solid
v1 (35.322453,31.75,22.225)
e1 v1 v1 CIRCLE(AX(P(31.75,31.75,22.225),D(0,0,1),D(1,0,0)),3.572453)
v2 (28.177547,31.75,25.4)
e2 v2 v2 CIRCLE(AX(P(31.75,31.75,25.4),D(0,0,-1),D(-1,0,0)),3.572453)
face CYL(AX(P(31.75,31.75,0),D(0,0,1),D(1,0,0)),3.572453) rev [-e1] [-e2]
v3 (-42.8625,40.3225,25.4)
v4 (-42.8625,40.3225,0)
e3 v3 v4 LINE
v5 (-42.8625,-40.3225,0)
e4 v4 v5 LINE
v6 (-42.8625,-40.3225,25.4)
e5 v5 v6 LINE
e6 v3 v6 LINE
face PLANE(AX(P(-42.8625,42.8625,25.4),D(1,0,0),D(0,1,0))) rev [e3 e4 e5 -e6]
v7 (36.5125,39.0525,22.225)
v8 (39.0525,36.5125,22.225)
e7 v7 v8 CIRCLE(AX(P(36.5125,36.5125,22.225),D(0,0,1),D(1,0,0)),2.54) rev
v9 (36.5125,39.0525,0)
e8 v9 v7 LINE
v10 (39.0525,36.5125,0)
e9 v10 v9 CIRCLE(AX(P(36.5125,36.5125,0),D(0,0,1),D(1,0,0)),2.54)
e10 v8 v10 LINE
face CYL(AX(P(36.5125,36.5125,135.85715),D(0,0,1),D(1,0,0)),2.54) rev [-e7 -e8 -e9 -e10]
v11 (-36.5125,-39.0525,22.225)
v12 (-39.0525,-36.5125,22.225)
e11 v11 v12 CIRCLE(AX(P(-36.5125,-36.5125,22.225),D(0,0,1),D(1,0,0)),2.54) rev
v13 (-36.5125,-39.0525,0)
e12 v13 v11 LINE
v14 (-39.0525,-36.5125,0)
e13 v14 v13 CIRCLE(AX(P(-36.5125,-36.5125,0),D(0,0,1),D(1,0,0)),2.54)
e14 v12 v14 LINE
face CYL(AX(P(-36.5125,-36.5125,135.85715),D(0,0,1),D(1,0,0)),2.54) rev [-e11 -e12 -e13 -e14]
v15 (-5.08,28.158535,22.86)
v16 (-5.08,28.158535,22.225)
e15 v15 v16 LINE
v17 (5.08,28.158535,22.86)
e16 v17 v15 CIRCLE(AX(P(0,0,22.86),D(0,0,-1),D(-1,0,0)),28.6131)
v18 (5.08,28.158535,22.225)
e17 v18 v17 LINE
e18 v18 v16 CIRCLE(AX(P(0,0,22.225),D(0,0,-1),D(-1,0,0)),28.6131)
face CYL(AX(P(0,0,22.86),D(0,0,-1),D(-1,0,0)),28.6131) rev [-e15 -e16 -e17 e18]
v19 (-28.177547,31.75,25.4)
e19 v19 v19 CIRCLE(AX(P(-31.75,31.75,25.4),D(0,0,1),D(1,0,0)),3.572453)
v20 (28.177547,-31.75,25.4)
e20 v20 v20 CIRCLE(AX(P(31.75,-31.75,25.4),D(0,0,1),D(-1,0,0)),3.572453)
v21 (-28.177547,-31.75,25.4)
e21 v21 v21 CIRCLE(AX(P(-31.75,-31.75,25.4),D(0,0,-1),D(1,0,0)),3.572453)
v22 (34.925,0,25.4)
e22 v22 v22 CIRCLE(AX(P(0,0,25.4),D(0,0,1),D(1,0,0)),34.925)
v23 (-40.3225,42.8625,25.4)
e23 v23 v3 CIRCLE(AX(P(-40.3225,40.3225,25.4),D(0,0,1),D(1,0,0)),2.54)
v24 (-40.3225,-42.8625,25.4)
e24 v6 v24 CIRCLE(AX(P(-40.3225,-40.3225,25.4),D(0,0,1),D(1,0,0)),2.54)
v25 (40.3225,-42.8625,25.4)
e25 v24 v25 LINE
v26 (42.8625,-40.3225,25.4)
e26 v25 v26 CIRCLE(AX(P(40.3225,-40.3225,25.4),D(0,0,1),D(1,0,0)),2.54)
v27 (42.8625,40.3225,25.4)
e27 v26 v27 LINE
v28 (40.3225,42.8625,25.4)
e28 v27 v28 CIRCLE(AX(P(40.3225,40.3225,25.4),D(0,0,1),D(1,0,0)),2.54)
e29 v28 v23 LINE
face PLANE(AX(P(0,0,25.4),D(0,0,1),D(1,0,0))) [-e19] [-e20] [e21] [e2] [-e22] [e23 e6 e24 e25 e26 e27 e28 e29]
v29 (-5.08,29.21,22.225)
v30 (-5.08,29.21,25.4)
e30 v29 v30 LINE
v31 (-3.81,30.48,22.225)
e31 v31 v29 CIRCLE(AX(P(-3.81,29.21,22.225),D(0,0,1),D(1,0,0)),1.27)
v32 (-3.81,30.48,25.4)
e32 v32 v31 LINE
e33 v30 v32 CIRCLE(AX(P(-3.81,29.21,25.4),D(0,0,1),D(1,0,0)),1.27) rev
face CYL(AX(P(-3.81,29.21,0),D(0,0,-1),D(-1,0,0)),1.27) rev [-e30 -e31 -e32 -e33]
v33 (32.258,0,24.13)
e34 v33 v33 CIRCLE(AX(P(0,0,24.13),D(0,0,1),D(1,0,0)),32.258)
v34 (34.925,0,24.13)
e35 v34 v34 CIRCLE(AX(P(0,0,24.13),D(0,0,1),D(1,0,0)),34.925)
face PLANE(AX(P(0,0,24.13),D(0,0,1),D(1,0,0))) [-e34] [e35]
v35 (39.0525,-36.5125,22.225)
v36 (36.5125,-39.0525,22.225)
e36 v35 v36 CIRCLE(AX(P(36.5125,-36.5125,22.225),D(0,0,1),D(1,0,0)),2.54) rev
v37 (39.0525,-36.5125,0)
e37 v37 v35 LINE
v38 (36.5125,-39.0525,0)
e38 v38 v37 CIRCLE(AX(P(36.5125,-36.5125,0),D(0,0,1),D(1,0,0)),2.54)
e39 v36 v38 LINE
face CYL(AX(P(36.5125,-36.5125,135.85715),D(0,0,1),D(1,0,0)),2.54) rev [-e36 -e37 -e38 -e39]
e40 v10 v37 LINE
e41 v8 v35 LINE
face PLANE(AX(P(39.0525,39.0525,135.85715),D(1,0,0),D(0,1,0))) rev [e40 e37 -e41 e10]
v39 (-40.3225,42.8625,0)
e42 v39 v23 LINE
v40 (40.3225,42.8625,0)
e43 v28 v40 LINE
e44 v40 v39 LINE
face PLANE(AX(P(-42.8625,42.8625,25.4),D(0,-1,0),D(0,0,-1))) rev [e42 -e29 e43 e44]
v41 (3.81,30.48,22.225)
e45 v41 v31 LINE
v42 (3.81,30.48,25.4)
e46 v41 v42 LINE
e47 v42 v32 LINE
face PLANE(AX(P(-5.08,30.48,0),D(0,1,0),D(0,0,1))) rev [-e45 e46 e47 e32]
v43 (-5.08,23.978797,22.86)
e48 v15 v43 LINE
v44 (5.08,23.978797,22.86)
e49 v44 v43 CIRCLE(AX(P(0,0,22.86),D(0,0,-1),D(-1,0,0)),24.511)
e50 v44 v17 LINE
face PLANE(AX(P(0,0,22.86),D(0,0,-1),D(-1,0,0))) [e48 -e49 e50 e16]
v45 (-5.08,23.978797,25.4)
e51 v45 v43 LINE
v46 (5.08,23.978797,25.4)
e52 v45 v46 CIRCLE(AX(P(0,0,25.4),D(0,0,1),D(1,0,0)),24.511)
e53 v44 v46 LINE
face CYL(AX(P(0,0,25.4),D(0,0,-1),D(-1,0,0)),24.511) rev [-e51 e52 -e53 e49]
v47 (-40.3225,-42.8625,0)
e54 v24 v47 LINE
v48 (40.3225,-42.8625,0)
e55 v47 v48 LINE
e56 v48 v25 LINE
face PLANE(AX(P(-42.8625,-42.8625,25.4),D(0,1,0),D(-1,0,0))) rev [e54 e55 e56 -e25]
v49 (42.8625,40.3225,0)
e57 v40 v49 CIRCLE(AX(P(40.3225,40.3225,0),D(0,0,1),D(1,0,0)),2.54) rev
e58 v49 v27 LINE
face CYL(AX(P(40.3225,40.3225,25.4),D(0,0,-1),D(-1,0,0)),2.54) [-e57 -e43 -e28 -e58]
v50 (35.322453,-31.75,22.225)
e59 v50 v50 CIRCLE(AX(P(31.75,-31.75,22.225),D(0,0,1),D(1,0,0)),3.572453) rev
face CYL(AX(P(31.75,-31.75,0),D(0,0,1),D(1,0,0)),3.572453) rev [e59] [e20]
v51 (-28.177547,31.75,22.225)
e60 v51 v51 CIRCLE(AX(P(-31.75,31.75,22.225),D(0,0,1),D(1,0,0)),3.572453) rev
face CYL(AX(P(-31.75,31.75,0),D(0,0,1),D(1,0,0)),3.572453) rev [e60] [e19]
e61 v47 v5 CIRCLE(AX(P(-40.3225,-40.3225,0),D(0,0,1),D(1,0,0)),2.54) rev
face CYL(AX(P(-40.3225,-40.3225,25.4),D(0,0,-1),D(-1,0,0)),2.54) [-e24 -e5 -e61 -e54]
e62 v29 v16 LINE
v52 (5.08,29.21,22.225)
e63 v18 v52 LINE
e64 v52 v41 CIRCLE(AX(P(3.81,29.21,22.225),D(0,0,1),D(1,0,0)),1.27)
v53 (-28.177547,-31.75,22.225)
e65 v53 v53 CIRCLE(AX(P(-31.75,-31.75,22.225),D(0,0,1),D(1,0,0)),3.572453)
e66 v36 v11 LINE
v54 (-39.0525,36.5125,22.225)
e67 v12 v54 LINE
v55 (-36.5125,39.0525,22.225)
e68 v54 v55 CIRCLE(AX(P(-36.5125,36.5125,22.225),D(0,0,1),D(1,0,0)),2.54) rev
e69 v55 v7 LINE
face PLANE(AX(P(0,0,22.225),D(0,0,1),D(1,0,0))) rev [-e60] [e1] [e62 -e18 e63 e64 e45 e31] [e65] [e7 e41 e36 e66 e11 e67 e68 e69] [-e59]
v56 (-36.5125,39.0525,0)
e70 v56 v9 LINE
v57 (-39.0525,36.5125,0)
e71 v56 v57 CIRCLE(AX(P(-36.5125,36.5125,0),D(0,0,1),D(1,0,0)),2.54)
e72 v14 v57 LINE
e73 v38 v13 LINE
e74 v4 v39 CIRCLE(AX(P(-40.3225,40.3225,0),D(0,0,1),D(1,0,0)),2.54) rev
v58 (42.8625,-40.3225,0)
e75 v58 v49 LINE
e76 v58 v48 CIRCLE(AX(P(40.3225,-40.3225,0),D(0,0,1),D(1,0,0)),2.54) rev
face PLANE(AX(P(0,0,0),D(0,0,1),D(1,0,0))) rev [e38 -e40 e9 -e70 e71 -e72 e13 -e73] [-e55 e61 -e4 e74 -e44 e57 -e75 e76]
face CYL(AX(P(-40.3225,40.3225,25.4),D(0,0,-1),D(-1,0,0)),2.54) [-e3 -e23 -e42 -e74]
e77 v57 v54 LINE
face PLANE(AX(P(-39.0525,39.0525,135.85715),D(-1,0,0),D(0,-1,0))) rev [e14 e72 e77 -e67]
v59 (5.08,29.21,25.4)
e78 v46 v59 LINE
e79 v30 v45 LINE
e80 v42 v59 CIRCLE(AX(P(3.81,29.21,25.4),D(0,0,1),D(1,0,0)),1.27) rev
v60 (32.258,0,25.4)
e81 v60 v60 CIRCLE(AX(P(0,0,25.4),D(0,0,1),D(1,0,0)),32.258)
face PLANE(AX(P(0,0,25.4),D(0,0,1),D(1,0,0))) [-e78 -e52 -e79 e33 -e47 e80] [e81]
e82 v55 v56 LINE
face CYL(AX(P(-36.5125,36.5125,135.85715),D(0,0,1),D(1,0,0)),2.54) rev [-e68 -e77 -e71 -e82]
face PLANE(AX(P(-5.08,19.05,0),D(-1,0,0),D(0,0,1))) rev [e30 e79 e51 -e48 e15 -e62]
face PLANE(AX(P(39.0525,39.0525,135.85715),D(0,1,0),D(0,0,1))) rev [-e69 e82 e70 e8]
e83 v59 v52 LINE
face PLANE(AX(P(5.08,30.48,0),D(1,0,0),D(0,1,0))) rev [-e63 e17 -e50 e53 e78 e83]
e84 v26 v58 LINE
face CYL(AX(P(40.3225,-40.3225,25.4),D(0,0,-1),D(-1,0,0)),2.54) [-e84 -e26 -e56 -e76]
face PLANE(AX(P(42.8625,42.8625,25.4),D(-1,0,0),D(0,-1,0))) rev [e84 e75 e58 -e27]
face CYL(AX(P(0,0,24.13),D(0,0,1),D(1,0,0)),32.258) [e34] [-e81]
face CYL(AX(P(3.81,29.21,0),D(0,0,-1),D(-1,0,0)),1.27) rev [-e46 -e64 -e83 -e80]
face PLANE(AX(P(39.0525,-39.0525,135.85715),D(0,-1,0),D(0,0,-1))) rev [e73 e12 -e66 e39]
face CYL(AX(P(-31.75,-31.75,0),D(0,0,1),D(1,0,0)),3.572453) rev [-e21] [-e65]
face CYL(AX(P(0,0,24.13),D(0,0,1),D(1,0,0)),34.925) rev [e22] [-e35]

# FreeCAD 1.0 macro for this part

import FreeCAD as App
import Part
import Sketcher
Q = App.Units.Quantity


def edges_at(feature, points):
    """Names of the edges that pass closest to the given points."""
    edges = feature.Shape.Edges
    near = lambda p: min(range(len(edges)), key=lambda i: edges[i].distToShape(Part.Vertex(*p))[0])
    return sorted({f"Edge{near(p) + 1}" for p in points})

doc = App.newDocument("Part")
body = doc.addObject("PartDesign::Body", "Body")

sketch1 = body.newObject("Sketcher::SketchObject", "Sketch")
sketch1.AttachmentSupport = (doc.getObject("XY_Plane"), [""])
sketch1.MapMode = "FlatFace"
sketch1.addGeometry(Part.LineSegment(App.Vector(-42.8625, 42.8625, 0), App.Vector(-42.8625, -42.8625, 0)), False)
sketch1.addGeometry(Part.LineSegment(App.Vector(-42.8625, -42.8625, 0), App.Vector(42.8625, -42.8625, 0)), False)
sketch1.addGeometry(Part.LineSegment(App.Vector(42.8625, -42.8625, 0), App.Vector(42.8625, 42.8625, 0)), False)
sketch1.addGeometry(Part.LineSegment(App.Vector(42.8625, 42.8625, 0), App.Vector(-42.8625, 42.8625, 0)), False)
sketch1.addGeometry(Part.Circle(App.Vector(0, 0, 0), App.Vector(0, 0, 1), 24.511), False)
sketch1.addConstraint(Sketcher.Constraint("Coincident", 0, 2, 1, 1))
sketch1.addConstraint(Sketcher.Constraint("Coincident", 1, 2, 2, 1))
sketch1.addConstraint(Sketcher.Constraint("Coincident", 2, 2, 3, 1))
sketch1.addConstraint(Sketcher.Constraint("Coincident", 3, 2, 0, 1))
sketch1.addConstraint(Sketcher.Constraint("Vertical", 0))
sketch1.addConstraint(Sketcher.Constraint("Horizontal", 1))
sketch1.addConstraint(Sketcher.Constraint("Vertical", 2))
sketch1.addConstraint(Sketcher.Constraint("Horizontal", 3))
sketch1.addConstraint(Sketcher.Constraint("Coincident", 4, 3, -1, 1))
sketch1.addConstraint(Sketcher.Constraint("Symmetric", 0, 2, 2, 2, -1, 1))
sketch1.addConstraint(Sketcher.Constraint("Equal", 3, 0))
sketch1.addConstraint(Sketcher.Constraint("Diameter", 4, Q("1.93 in")))
sketch1.addConstraint(Sketcher.Constraint("DistanceX", 1, 1, 1, 2, Q("3.375 in")))
pad1 = body.newObject("PartDesign::Pad", "Pad")
pad1.Profile = sketch1
pad1.Length = Q("1 in")

sketch2 = body.newObject("Sketcher::SketchObject", "Sketch001")
sketch2.AttachmentSupport = (doc.getObject("XY_Plane"), [""])
sketch2.MapMode = "FlatFace"
sketch2.AttachmentOffset = App.Placement(App.Vector(0, 0, 1 * 25.4), App.Rotation())
sketch2.addGeometry(Part.Circle(App.Vector(-31.75, 31.75, 0), App.Vector(0, 0, 1), 3.572453), False)
sketch2.addConstraint(Sketcher.Constraint("DistanceX", 0, 3, -1, 1, Q("1.25 in")))
sketch2.addConstraint(Sketcher.Constraint("DistanceY", -1, 1, 0, 3, Q("1.25 in")))
sketch2.addConstraint(Sketcher.Constraint("Diameter", 0, Q("7.144907 mm")))
pocket1 = body.newObject("PartDesign::Pocket", "Pocket")
pocket1.Profile = sketch2
pocket1.Type = "ThroughAll"
doc.recompute()

mirrored = body.newObject("PartDesign::Mirrored", "Mirrored")
mirrored.Originals = [pocket1]
mirrored.MirrorPlane = (doc.getObject("YZ_Plane"), [""])
body.Tip = mirrored
doc.recompute()

mirrored2 = body.newObject("PartDesign::Mirrored", "Mirrored001")
mirrored2.Originals = [pocket1]
mirrored2.MirrorPlane = (doc.getObject("XZ_Plane"), [""])
body.Tip = mirrored2

sketch3 = body.newObject("Sketcher::SketchObject", "Sketch002")
sketch3.AttachmentSupport = (doc.getObject("XY_Plane"), [""])
sketch3.MapMode = "FlatFace"
sketch3.AttachmentOffset = App.Placement(App.Vector(0, 0, 1 * 25.4), App.Rotation())
sketch3.addGeometry(Part.Circle(App.Vector(31.75, -31.75, 0), App.Vector(0, 0, 1), 3.572453), False)
sketch3.addConstraint(Sketcher.Constraint("DistanceX", -1, 1, 0, 3, Q("1.25 in")))
sketch3.addConstraint(Sketcher.Constraint("DistanceY", 0, 3, -1, 1, Q("1.25 in")))
sketch3.addConstraint(Sketcher.Constraint("Diameter", 0, Q("7.144907 mm")))
pocket2 = body.newObject("PartDesign::Pocket", "Pocket001")
pocket2.Profile = sketch3
pocket2.Type = "ThroughAll"

sketch4 = body.newObject("Sketcher::SketchObject", "Sketch003")
sketch4.AttachmentSupport = (doc.getObject("XY_Plane"), [""])
sketch4.MapMode = "FlatFace"
sketch4.addGeometry(Part.LineSegment(App.Vector(39.0525, 39.0525, 0), App.Vector(39.0525, -39.0525, 0)), False)
sketch4.addGeometry(Part.LineSegment(App.Vector(39.0525, -39.0525, 0), App.Vector(-39.0525, -39.0525, 0)), False)
sketch4.addGeometry(Part.LineSegment(App.Vector(-39.0525, -39.0525, 0), App.Vector(-39.0525, 39.0525, 0)), False)
sketch4.addGeometry(Part.LineSegment(App.Vector(-39.0525, 39.0525, 0), App.Vector(39.0525, 39.0525, 0)), False)
sketch4.addConstraint(Sketcher.Constraint("Coincident", 0, 2, 1, 1))
sketch4.addConstraint(Sketcher.Constraint("Coincident", 1, 2, 2, 1))
sketch4.addConstraint(Sketcher.Constraint("Coincident", 2, 2, 3, 1))
sketch4.addConstraint(Sketcher.Constraint("Coincident", 3, 2, 0, 1))
sketch4.addConstraint(Sketcher.Constraint("Vertical", 0))
sketch4.addConstraint(Sketcher.Constraint("Horizontal", 1))
sketch4.addConstraint(Sketcher.Constraint("Vertical", 2))
sketch4.addConstraint(Sketcher.Constraint("Horizontal", 3))
sketch4.addConstraint(Sketcher.Constraint("Symmetric", 0, 2, 2, 2, -1, 1))
sketch4.addConstraint(Sketcher.Constraint("Equal", 3, 0))
sketch4.addConstraint(Sketcher.Constraint("DistanceX", 1, 2, 1, 1, Q("3.075 in")))
pocket3 = body.newObject("PartDesign::Pocket", "Pocket002")
pocket3.Profile = sketch4
pocket3.Length = Q("0.875 in")
pocket3.Reversed = True
doc.recompute()

fillet = body.newObject("PartDesign::Fillet", "Fillet")
fillet.Base = (pocket3, edges_at(pocket3, [
    (-39.053, -39.053, 11.113),
    (-39.053, 39.053, 11.113),
    (39.053, 39.053, 11.113),
    (39.053, -39.053, 11.113),
    (-42.862, 42.862, 12.7),
    (42.862, 42.862, 12.7),
    (42.862, -42.862, 12.7),
    (-42.862, -42.862, 12.7),
]))
fillet.Radius = Q("0.1 in")

sketch5 = body.newObject("Sketcher::SketchObject", "Sketch004")
sketch5.AttachmentSupport = (doc.getObject("XY_Plane"), [""])
sketch5.MapMode = "FlatFace"
sketch5.AttachmentOffset = App.Placement(App.Vector(0, 0, 1 * 25.4), App.Rotation())
sketch5.addGeometry(Part.Circle(App.Vector(0, 0, 0), App.Vector(0, 0, 1), 34.925), False)
sketch5.addGeometry(Part.Circle(App.Vector(0, 0, 0), App.Vector(0, 0, 1), 32.258), False)
sketch5.addConstraint(Sketcher.Constraint("Coincident", 0, 3, -1, 1))
sketch5.addConstraint(Sketcher.Constraint("Coincident", 1, 3, -1, 1))
sketch5.addConstraint(Sketcher.Constraint("Diameter", 0, Q("2.75 in")))
sketch5.addConstraint(Sketcher.Constraint("Diameter", 1, Q("2.54 in")))
pocket4 = body.newObject("PartDesign::Pocket", "Pocket003")
pocket4.Profile = sketch5
pocket4.Length = Q("0.05 in")

sketch6 = body.newObject("Sketcher::SketchObject", "Sketch005")
sketch6.AttachmentSupport = (doc.getObject("XY_Plane"), [""])
sketch6.MapMode = "FlatFace"
sketch6.AttachmentOffset = App.Placement(App.Vector(0, 0, 1 * 25.4), App.Rotation())
sketch6.addGeometry(Part.LineSegment(App.Vector(-5.08, 30.48, 0), App.Vector(-5.08, 19.05, 0)), False)
sketch6.addGeometry(Part.LineSegment(App.Vector(-5.08, 19.05, 0), App.Vector(5.08, 19.05, 0)), False)
sketch6.addGeometry(Part.LineSegment(App.Vector(5.08, 19.05, 0), App.Vector(5.08, 30.48, 0)), False)
sketch6.addGeometry(Part.LineSegment(App.Vector(5.08, 30.48, 0), App.Vector(-5.08, 30.48, 0)), False)
sketch6.addConstraint(Sketcher.Constraint("Coincident", 0, 2, 1, 1))
sketch6.addConstraint(Sketcher.Constraint("Coincident", 1, 2, 2, 1))
sketch6.addConstraint(Sketcher.Constraint("Coincident", 2, 2, 3, 1))
sketch6.addConstraint(Sketcher.Constraint("Coincident", 3, 2, 0, 1))
sketch6.addConstraint(Sketcher.Constraint("Vertical", 0))
sketch6.addConstraint(Sketcher.Constraint("Horizontal", 1))
sketch6.addConstraint(Sketcher.Constraint("Vertical", 2))
sketch6.addConstraint(Sketcher.Constraint("Horizontal", 3))
sketch6.addConstraint(Sketcher.Constraint("DistanceX", 1, 1, 1, 2, Q("0.4 in")))
sketch6.addConstraint(Sketcher.Constraint("DistanceY", 0, 2, 0, 1, Q("0.45 in")))
sketch6.addConstraint(Sketcher.Constraint("DistanceX", 0, 2, -1, 1, Q("0.2 in")))
sketch6.addConstraint(Sketcher.Constraint("DistanceY", -1, 1, 2, 2, Q("1.2 in")))
pocket5 = body.newObject("PartDesign::Pocket", "Pocket004")
pocket5.Profile = sketch6
pocket5.Type = "ThroughAll"
doc.recompute()

fillet2 = body.newObject("PartDesign::Fillet", "Fillet001")
fillet2.Base = (pocket5, edges_at(pocket5, [(-5.08, 30.48, 23.812), (5.08, 30.48, 23.812)]))
fillet2.Radius = Q("0.05 in")

sketch7 = body.newObject("Sketcher::SketchObject", "Sketch006")
sketch7.AttachmentSupport = (doc.getObject("XY_Plane"), [""])
sketch7.MapMode = "FlatFace"
sketch7.AttachmentOffset = App.Placement(App.Vector(0, 0, 0.875 * 25.4), App.Rotation())
sketch7.addGeometry(Part.Circle(App.Vector(0, 0, 0), App.Vector(0, 0, 1), 28.6131), False)
sketch7.addConstraint(Sketcher.Constraint("Coincident", 0, 3, -1, 1))
sketch7.addConstraint(Sketcher.Constraint("Diameter", 0, Q("2.253 in")))
pocket6 = body.newObject("PartDesign::Pocket", "Pocket005")
pocket6.Profile = sketch7
pocket6.Length = Q("0.025 in")
pocket6.Reversed = True

doc.recompute()
